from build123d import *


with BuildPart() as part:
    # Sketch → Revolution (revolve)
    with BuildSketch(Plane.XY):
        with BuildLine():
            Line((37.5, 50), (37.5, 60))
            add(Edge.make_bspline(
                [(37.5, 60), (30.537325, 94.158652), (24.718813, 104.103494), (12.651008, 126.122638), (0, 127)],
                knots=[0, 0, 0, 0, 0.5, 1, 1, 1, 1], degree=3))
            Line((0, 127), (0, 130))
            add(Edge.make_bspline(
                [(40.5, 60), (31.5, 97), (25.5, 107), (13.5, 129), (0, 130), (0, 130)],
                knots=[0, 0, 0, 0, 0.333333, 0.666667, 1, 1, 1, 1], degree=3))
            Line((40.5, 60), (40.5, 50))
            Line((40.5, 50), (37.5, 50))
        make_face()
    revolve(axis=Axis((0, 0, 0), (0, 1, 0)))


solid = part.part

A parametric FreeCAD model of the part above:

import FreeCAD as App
import Part
import Sketcher

V = App.Vector
Q = App.Units.Quantity

doc = App.newDocument("Part")
params = doc.addObject("Spreadsheet::Sheet", "Params")
for row, (alias, value) in enumerate([
    ("sketch1_height", "10 mm"),
    ("revolution_angle", "360 deg"),
], start=1):
    params.set(f"A{row}", alias)
    params.set(f"B{row}", "=" + value)
    params.setAlias(f"B{row}", alias)

body = doc.addObject("PartDesign::Body", "Body")

sketch1 = doc.addObject("Sketcher::SketchObject", "Sketch")
body.addObject(sketch1)
sketch1.AttachmentSupport = (doc.XY_Plane, [""])
sketch1.MapMode = "FlatFace"
sketch1.addGeometry(Part.LineSegment(V(37.5, 60, 0), V(37.5, 50, 0)), False)
sketch1.addGeometry(Part.LineSegment(V(37.5, 50, 0), V(40.5, 50, 0)), False)
sketch1.addGeometry(Part.LineSegment(V(40.5, 50, 0), V(40.5, 60, 0)), False)
sketch1.addGeometry(Part.BSplineCurve([V(40.5, 60, 0), V(31.5, 97, 0), V(25.5, 107, 0), V(13.5, 129, 0), V(0, 130, 0), V(0, 130, 0)], [4, 1, 1, 4], [0, 0.333333, 0.666667, 1], False, 3, [1, 1, 1, 1, 1, 1], False), False)
sketch1.addGeometry(Part.LineSegment(V(0, 130, 0), V(0, 127, 0)), False)
sketch1.addGeometry(Part.BSplineCurve([V(37.5, 60, 0), V(30.537325, 94.158652, 0), V(24.718813, 104.103494, 0), V(12.651008, 126.122638, 0), V(0, 127, 0)], [4, 1, 4], [0, 0.5, 1], False, 3, [1, 1, 1, 1, 1], False), False)
sketch1.addConstraint(Sketcher.Constraint("Block", 3))
sketch1.addConstraint(Sketcher.Constraint("Block", 5))
sketch1.addConstraint(Sketcher.Constraint("Coincident", 0, 2, 1, 1))
sketch1.addConstraint(Sketcher.Constraint("Coincident", 1, 2, 2, 1))
sketch1.addConstraint(Sketcher.Constraint("Coincident", 2, 2, 3, 1))
sketch1.addConstraint(Sketcher.Constraint("Coincident", 3, 2, 4, 1))
sketch1.addConstraint(Sketcher.Constraint("Coincident", 4, 2, 5, 2))
sketch1.addConstraint(Sketcher.Constraint("Coincident", 5, 1, 0, 1))
sketch1.addConstraint(Sketcher.Constraint("Vertical", 0))
sketch1.addConstraint(Sketcher.Constraint("Horizontal", 1))
sketch1.addConstraint(Sketcher.Constraint("Vertical", 2))
sketch1.addConstraint(Sketcher.Constraint("DistanceY", 0, 2, 0, 1, Q("10 mm")))
sketch1.setExpression("Constraints[11]", "Params.sketch1_height")
revolution = doc.addObject("PartDesign::Revolution", "Revolution")
body.addObject(revolution)
revolution.Profile = sketch1
revolution.ReferenceAxis = (sketch1, ["V_Axis"])
revolution.setExpression("Angle", "Params.revolution_angle")

doc.recompute()
